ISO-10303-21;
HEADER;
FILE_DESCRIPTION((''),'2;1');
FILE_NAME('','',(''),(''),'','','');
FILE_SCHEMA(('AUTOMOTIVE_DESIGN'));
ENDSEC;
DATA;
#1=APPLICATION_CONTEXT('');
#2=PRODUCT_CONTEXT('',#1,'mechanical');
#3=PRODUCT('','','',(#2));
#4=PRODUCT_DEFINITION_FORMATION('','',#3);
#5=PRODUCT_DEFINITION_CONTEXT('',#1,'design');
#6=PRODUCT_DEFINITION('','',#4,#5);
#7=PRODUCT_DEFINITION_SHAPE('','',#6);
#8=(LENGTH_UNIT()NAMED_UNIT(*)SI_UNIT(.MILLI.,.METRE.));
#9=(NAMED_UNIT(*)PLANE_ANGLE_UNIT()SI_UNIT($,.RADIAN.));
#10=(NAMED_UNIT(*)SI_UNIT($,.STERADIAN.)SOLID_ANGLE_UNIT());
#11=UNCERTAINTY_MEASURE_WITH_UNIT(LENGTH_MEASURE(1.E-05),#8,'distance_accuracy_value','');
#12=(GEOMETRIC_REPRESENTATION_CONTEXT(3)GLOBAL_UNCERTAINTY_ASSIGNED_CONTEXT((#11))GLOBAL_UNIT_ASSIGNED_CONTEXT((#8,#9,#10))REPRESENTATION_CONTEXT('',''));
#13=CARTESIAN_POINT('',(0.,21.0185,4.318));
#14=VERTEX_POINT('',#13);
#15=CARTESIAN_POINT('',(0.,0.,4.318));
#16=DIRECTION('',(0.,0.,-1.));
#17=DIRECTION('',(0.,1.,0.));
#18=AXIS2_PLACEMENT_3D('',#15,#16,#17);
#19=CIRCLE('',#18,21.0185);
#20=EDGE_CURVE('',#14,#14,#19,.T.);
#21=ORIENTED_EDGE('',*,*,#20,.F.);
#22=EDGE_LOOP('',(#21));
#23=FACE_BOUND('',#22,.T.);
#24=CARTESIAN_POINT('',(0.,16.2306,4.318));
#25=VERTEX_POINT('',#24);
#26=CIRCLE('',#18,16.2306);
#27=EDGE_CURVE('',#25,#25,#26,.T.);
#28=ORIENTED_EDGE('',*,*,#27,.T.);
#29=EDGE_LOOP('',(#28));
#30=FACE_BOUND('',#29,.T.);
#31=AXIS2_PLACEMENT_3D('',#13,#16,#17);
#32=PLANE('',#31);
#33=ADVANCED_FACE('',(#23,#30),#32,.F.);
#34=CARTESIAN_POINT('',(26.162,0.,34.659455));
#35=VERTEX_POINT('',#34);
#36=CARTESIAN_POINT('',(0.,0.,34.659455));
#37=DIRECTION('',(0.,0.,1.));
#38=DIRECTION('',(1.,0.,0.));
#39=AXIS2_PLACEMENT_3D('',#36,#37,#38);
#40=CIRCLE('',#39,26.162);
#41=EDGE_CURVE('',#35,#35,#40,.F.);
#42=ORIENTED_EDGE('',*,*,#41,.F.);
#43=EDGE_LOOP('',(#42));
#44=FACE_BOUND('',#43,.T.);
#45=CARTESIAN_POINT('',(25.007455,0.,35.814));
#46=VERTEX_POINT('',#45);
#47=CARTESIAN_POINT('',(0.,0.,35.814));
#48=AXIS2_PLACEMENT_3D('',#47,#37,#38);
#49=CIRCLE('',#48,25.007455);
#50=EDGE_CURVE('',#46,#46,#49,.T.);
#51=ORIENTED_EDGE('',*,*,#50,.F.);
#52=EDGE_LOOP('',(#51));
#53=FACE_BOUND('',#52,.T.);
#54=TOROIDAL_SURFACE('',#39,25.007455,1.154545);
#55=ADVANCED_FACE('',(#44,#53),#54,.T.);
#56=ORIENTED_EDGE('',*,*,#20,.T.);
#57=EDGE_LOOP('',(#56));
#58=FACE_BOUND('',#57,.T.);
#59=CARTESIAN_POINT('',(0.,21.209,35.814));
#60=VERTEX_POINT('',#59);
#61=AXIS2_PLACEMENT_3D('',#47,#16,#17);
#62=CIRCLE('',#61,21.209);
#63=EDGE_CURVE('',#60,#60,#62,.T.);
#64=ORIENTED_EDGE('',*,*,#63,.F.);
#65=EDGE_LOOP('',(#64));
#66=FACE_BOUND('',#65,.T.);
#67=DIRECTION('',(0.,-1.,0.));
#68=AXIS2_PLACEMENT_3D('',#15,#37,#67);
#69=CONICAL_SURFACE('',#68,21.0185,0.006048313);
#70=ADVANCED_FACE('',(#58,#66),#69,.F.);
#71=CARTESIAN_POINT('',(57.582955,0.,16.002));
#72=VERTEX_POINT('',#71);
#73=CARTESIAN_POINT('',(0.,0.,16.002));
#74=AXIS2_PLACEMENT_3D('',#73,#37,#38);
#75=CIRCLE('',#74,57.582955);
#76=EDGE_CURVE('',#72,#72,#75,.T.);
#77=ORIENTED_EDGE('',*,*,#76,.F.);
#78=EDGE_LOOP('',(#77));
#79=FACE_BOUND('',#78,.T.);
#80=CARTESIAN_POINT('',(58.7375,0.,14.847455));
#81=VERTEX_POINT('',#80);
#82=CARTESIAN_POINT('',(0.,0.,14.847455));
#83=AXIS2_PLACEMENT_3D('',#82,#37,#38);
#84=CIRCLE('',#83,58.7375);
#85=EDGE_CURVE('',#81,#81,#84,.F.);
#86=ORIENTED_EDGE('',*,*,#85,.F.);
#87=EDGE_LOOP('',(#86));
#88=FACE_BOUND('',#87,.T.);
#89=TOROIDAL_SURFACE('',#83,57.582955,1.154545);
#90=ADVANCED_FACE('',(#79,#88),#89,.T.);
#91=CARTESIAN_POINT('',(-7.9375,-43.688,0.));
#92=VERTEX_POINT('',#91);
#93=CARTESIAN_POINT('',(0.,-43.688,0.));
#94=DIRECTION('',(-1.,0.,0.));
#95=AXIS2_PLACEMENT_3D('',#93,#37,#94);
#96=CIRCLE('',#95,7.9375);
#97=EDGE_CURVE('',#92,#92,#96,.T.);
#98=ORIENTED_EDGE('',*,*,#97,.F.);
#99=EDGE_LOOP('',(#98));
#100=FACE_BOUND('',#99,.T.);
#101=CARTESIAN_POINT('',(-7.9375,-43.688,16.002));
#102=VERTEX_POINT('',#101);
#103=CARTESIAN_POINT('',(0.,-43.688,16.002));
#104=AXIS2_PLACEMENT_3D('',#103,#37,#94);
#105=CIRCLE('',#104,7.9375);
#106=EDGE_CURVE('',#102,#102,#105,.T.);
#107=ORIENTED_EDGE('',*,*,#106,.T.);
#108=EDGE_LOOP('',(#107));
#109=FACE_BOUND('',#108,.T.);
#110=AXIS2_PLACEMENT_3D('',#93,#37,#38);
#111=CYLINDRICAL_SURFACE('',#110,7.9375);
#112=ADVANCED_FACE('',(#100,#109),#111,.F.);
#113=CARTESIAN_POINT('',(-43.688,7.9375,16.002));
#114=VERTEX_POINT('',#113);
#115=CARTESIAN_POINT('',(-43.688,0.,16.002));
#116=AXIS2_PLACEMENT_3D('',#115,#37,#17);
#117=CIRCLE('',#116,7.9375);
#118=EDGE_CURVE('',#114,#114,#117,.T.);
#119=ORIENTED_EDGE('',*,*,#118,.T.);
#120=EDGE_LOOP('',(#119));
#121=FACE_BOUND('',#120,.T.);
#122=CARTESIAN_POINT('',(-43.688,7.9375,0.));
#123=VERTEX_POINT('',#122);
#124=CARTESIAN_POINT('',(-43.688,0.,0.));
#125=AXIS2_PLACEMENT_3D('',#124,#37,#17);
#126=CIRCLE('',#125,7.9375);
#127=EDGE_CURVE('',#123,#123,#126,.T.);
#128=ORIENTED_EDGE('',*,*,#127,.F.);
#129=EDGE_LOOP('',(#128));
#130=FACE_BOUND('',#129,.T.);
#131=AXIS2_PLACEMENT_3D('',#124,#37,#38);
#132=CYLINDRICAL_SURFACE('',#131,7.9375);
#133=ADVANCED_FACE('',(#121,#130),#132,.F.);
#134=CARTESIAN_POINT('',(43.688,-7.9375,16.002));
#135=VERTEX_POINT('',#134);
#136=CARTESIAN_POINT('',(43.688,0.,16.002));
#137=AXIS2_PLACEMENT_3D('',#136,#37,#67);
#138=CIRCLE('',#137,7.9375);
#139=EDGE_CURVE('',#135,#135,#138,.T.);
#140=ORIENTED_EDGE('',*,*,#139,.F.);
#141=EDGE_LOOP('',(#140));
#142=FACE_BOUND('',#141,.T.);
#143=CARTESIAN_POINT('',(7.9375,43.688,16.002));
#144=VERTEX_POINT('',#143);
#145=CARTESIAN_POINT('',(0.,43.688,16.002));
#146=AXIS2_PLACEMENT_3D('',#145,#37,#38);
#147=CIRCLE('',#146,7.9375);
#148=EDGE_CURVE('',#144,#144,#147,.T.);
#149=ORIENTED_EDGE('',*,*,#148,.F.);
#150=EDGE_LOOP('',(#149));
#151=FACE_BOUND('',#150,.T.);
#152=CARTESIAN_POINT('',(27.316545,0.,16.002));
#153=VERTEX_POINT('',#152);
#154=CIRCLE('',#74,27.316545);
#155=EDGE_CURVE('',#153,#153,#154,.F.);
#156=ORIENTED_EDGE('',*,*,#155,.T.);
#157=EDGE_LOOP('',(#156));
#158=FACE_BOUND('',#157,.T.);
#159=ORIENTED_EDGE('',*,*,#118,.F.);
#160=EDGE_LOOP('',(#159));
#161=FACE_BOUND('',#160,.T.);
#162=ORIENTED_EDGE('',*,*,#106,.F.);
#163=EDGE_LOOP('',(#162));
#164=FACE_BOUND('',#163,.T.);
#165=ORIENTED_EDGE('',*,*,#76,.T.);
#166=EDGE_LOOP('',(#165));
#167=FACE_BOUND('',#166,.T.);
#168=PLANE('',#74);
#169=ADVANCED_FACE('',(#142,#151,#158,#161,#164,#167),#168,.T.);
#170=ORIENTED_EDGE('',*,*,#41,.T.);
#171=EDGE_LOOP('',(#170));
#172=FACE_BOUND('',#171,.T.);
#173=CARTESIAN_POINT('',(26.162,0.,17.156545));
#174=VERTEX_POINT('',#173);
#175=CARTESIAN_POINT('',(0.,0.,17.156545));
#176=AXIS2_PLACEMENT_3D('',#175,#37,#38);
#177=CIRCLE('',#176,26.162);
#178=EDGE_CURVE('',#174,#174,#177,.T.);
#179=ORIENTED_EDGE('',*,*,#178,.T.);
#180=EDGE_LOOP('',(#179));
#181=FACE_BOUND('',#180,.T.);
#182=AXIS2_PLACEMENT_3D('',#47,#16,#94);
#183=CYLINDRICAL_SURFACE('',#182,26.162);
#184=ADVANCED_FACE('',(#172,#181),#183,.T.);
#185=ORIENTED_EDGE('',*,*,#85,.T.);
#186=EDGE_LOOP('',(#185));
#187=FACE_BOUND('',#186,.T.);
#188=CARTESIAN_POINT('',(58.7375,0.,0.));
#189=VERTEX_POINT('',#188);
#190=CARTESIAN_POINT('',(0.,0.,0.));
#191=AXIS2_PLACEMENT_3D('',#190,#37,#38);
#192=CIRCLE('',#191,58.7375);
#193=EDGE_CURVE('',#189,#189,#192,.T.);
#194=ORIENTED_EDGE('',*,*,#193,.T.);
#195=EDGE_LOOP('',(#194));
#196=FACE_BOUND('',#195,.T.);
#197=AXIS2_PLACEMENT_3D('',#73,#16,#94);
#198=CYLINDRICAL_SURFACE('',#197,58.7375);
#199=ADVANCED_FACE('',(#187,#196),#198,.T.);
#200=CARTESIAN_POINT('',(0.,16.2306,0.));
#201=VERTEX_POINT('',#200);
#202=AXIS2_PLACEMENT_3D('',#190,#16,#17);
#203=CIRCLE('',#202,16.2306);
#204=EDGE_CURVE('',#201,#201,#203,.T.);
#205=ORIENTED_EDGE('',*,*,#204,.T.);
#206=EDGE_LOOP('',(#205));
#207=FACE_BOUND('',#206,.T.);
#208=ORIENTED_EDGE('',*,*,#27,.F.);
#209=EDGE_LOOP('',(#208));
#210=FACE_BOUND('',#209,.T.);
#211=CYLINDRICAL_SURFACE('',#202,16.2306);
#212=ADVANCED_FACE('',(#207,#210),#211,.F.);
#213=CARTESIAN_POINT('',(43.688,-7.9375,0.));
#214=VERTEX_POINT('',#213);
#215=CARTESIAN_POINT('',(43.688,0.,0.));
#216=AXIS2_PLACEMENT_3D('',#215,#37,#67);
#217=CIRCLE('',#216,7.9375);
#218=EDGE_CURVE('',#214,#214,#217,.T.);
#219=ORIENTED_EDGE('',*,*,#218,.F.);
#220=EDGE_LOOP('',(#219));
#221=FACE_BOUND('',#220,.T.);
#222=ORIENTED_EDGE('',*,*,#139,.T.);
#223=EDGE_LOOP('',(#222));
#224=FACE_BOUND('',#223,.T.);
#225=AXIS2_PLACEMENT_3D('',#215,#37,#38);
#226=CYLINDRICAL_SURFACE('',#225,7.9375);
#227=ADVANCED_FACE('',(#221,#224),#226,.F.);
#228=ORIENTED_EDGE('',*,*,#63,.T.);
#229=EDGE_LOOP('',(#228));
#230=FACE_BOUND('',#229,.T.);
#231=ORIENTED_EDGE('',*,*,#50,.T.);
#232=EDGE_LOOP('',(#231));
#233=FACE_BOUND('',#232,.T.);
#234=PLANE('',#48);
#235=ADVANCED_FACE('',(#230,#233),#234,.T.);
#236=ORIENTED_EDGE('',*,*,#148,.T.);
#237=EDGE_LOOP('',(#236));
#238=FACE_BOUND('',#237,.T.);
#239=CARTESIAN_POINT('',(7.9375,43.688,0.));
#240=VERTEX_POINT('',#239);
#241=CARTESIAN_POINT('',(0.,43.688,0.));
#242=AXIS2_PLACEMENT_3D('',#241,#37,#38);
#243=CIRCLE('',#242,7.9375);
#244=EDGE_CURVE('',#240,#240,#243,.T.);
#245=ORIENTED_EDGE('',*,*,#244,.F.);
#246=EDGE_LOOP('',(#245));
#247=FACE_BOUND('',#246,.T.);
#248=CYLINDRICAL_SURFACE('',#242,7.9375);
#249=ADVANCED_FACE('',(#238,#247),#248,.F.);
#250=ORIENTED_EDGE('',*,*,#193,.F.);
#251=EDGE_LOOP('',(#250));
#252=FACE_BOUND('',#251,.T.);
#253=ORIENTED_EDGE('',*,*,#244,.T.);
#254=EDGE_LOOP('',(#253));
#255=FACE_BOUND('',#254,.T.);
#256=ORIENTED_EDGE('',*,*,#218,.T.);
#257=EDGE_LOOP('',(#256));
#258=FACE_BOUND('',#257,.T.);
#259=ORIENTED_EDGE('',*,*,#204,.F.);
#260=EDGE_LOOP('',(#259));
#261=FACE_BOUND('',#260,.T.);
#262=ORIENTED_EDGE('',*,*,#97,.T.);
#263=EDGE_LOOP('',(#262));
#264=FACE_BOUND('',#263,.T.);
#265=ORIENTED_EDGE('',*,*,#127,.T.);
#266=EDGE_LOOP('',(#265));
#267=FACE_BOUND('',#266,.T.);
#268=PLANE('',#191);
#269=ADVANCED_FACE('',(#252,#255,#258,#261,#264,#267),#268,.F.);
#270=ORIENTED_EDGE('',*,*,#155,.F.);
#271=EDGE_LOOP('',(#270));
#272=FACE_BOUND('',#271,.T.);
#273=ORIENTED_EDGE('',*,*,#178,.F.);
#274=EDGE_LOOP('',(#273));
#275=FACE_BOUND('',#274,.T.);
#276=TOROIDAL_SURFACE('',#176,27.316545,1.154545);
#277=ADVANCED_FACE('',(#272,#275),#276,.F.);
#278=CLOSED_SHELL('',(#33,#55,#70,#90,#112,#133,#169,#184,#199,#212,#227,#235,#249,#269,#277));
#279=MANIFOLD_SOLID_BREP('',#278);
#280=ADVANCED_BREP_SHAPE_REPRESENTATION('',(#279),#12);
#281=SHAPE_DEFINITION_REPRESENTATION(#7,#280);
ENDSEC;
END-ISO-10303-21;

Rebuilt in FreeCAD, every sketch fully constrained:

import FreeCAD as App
import Part
import Sketcher
Q = App.Units.Quantity


def edges_at(feature, points):
    """Names of the edges that pass closest to the given points."""
    edges = feature.Shape.Edges
    near = lambda p: min(range(len(edges)), key=lambda i: edges[i].distToShape(Part.Vertex(*p))[0])
    return sorted({f"Edge{near(p) + 1}" for p in points})

doc = App.newDocument("Part")
body = doc.addObject("PartDesign::Body", "Body")

# Sketch on XY plane
sketch1 = doc.addObject("Sketcher::SketchObject", "Sketch")
body.addObject(sketch1)
sketch1.AttachmentSupport = (doc.XY_Plane, [""])
sketch1.MapMode = "FlatFace"
sketch1.addGeometry(Part.Circle(App.Vector(0, 0, 0), App.Vector(0, 0, 1), 59), False)
sketch1.addConstraint(Sketcher.Constraint("Coincident", 0, 3, -1, 1))
sketch1.addConstraint(Sketcher.Constraint("Diameter", 0, Q("4.625 in")))
pad1 = doc.addObject("PartDesign::Pad", "Pad")
body.addObject(pad1)
pad1.Profile = sketch1
pad1.Length = Q("0.63 in")

# Sketch on XY plane
sketch2 = doc.addObject("Sketcher::SketchObject", "Sketch001")
body.addObject(sketch2)
sketch2.AttachmentSupport = (doc.XY_Plane, [""])
sketch2.MapMode = "FlatFace"
sketch2.AttachmentOffset = App.Placement(App.Vector(0, 0, 0.63 * 25.4), App.Rotation())
sketch2.addGeometry(Part.Circle(App.Vector(0, 0, 0), App.Vector(0, 0, 1), 26), False)
sketch2.addConstraint(Sketcher.Constraint("Coincident", 0, 3, -1, 1))
sketch2.addConstraint(Sketcher.Constraint("Diameter", 0, Q("2.06 in")))
pad2 = doc.addObject("PartDesign::Pad", "Pad001")
body.addObject(pad2)
pad2.Profile = sketch2
pad2.Length = Q("0.78 in")

# Sketch on XY plane
sketch3 = doc.addObject("Sketcher::SketchObject", "Sketch002")
body.addObject(sketch3)
sketch3.AttachmentSupport = (doc.XY_Plane, [""])
sketch3.MapMode = "FlatFace"
sketch3.AttachmentOffset = App.Placement(App.Vector(0, 0, 0.63 * 25.4), App.Rotation())
sketch3.addGeometry(Part.Circle(App.Vector(0, 44, 0), App.Vector(0, 0, 1), 8), False)
sketch3.addConstraint(Sketcher.Constraint("PointOnObject", 0, 3, -2))
sketch3.addConstraint(Sketcher.Constraint("Diameter", 0, Q("0.625 in")))
sketch3.addConstraint(Sketcher.Constraint("DistanceY", -1, 1, 0, 3, Q("1.72 in")))
pocket1 = doc.addObject("PartDesign::Pocket", "Pocket")
body.addObject(pocket1)
pocket1.Profile = sketch3
pocket1.Type = "ThroughAll"
doc.recompute()

polarpattern = doc.addObject("PartDesign::PolarPattern", "PolarPattern")
body.addObject(polarpattern)
polarpattern.Originals = [pocket1]
polarpattern.Axis = (doc.Z_Axis, [""])
polarpattern.Angle = 360
polarpattern.Occurrences = 4
body.Tip = polarpattern
doc.recompute()

fillet = doc.addObject("PartDesign::Fillet", "Fillet")
body.addObject(fillet)
fillet.Base = (polarpattern, edges_at(polarpattern, [(-58.737, 0, 16.002), (-26.162, 0, 16.002), (-26.162, 0, 35.814)]))
fillet.Radius = 1.154545

# Sketch on YZ plane
sketch4 = doc.addObject("Sketcher::SketchObject", "Sketch003")
body.addObject(sketch4)
sketch4.AttachmentSupport = (doc.YZ_Plane, [""])
sketch4.MapMode = "FlatFace"
sketch4.addGeometry(Part.LineSegment(App.Vector(21, 4.3, 0), App.Vector(21.2, 35.8, 0)), False)
sketch4.addGeometry(Part.LineSegment(App.Vector(21.2, 35.8, 0), App.Vector(0, 35.8, 0)), False)
sketch4.addGeometry(Part.LineSegment(App.Vector(0, 35.8, 0), App.Vector(0, 0, 0)), False)
sketch4.addGeometry(Part.LineSegment(App.Vector(0, 0, 0), App.Vector(16.2, 0, 0)), False)
sketch4.addGeometry(Part.LineSegment(App.Vector(16.2, 0, 0), App.Vector(16.2, 4.3, 0)), False)
sketch4.addGeometry(Part.LineSegment(App.Vector(16.2, 4.3, 0), App.Vector(21, 4.3, 0)), False)
sketch4.addConstraint(Sketcher.Constraint("Coincident", 0, 2, 1, 1))
sketch4.addConstraint(Sketcher.Constraint("Coincident", 1, 2, 2, 1))
sketch4.addConstraint(Sketcher.Constraint("Coincident", 2, 2, 3, 1))
sketch4.addConstraint(Sketcher.Constraint("Coincident", 3, 2, 4, 1))
sketch4.addConstraint(Sketcher.Constraint("Coincident", 4, 2, 5, 1))
sketch4.addConstraint(Sketcher.Constraint("Coincident", 5, 2, 0, 1))
sketch4.addConstraint(Sketcher.Constraint("Horizontal", 1))
sketch4.addConstraint(Sketcher.Constraint("Vertical", 2))
sketch4.addConstraint(Sketcher.Constraint("Horizontal", 3))
sketch4.addConstraint(Sketcher.Constraint("Vertical", 4))
sketch4.addConstraint(Sketcher.Constraint("Horizontal", 5))
sketch4.addConstraint(Sketcher.Constraint("Coincident", 2, 2, -1, 1))
sketch4.addConstraint(Sketcher.Constraint("DistanceY", 2, 2, 2, 1, Q("1.41 in")))
sketch4.addConstraint(Sketcher.Constraint("DistanceY", 4, 1, 4, 2, Q("0.17 in")))
sketch4.addConstraint(Sketcher.Constraint("DistanceX", 1, 2, 1, 1, Q("0.835 in")))
sketch4.addConstraint(Sketcher.Constraint("DistanceX", 3, 1, 3, 2, Q("0.639 in")))
sketch4.addConstraint(Sketcher.Constraint("DistanceX", 5, 1, 5, 2, Q("0.1885 in")))
groove = doc.addObject("PartDesign::Groove", "Groove")
body.addObject(groove)
groove.Profile = sketch4
groove.ReferenceAxis = (sketch4, ["V_Axis"])
groove.Angle = 360

doc.recompute()
